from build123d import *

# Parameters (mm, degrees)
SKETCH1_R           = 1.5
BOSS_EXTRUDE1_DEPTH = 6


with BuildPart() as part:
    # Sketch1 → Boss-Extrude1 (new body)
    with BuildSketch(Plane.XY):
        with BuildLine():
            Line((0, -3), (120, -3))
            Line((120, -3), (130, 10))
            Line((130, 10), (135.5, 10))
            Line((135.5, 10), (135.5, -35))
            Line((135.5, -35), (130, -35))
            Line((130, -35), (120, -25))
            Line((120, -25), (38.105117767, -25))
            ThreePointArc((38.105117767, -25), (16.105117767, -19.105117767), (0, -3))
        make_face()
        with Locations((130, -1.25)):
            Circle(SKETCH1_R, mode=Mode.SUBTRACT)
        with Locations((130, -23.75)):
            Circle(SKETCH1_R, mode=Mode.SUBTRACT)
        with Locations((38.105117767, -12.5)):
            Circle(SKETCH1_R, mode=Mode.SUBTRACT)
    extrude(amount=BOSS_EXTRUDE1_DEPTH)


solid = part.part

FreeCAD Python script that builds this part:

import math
import FreeCAD as App
import Part
import Sketcher

V = App.Vector
Q = App.Units.Quantity

doc = App.newDocument("Part")
body = doc.addObject("PartDesign::Body", "Body")

sketch1 = body.newObject("Sketcher::SketchObject", "Sketch")
sketch1.AttachmentSupport = (doc.getObject("XY_Plane"), [""])
sketch1.MapMode = "FlatFace"
sketch1.addGeometry(Part.LineSegment(V(120, -3, 0), V(0, -3, 0)), False)
sketch1.addGeometry(Part.ArcOfCircle(Part.Circle(V(38.1, 19, 0), V(0, 0, 1), 44), math.radians(-150), math.radians(-90)), False)
sketch1.addGeometry(Part.LineSegment(V(38.1, -25, 0), V(120, -25, 0)), False)
sketch1.addGeometry(Part.LineSegment(V(120, -25, 0), V(130, -35, 0)), False)
sketch1.addGeometry(Part.LineSegment(V(130, -35, 0), V(135.5, -35, 0)), False)
sketch1.addGeometry(Part.LineSegment(V(135.5, -35, 0), V(135.5, 10, 0)), False)
sketch1.addGeometry(Part.LineSegment(V(135.5, 10, 0), V(130, 10, 0)), False)
sketch1.addGeometry(Part.LineSegment(V(130, 10, 0), V(120, -3, 0)), False)
sketch1.addGeometry(Part.Circle(V(130, -23.8, 0), V(0, 0, 1), 1.5), False)
sketch1.addGeometry(Part.Circle(V(130, -1.2, 0), V(0, 0, 1), 1.5), False)
sketch1.addGeometry(Part.Circle(V(38.1, -12.5, 0), V(0, 0, 1), 1.5), False)
sketch1.addConstraint(Sketcher.Constraint("Coincident", 0, 2, 1, 1))
sketch1.addConstraint(Sketcher.Constraint("Tangent", 1, 2, 2, 1))
sketch1.addConstraint(Sketcher.Constraint("Coincident", 2, 2, 3, 1))
sketch1.addConstraint(Sketcher.Constraint("Coincident", 3, 2, 4, 1))
sketch1.addConstraint(Sketcher.Constraint("Coincident", 4, 2, 5, 1))
sketch1.addConstraint(Sketcher.Constraint("Coincident", 5, 2, 6, 1))
sketch1.addConstraint(Sketcher.Constraint("Coincident", 6, 2, 7, 1))
sketch1.addConstraint(Sketcher.Constraint("Coincident", 7, 2, 0, 1))
sketch1.addConstraint(Sketcher.Constraint("Horizontal", 0))
sketch1.addConstraint(Sketcher.Constraint("Horizontal", 2))
sketch1.addConstraint(Sketcher.Constraint("Horizontal", 4))
sketch1.addConstraint(Sketcher.Constraint("Vertical", 5))
sketch1.addConstraint(Sketcher.Constraint("Horizontal", 6))
sketch1.addConstraint(Sketcher.Constraint("Equal", 8, 9))
sketch1.addConstraint(Sketcher.Constraint("Equal", 9, 10))
sketch1.addConstraint(Sketcher.Constraint("PointOnObject", 0, 2, -2))
sketch1.addConstraint(Sketcher.Constraint("Vertical", 8, 3, 9, 3))
sketch1.addConstraint(Sketcher.Constraint("Vertical", 1, 3, 10, 3))
sketch1.addConstraint(Sketcher.Constraint("Vertical", 9, 3, 3, 2))
sketch1.addConstraint(Sketcher.Constraint("Vertical", 3, 2, 6, 2))
sketch1.addConstraint(Sketcher.Constraint("Vertical", 2, 2, 7, 2))
sketch1.addConstraint(Sketcher.Constraint("Diameter", 8, 3.0))
sketch1.addConstraint(Sketcher.Constraint("Radius", 1, 44.0))
sketch1.addConstraint(Sketcher.Constraint("DistanceX", 0, 2, 0, 1, 120.0))
sketch1.addConstraint(Sketcher.Constraint("DistanceY", 5, 1, 5, 2, 45.0))
sketch1.addConstraint(Sketcher.Constraint("Angle", 3, Q("-45 deg")))
sketch1.addConstraint(Sketcher.Constraint("DistanceX", 4, 1, 4, 2, 5.5))
sketch1.addConstraint(Sketcher.Constraint("DistanceY", -1, 1, 1, 3, 19.0))
sketch1.addConstraint(Sketcher.Constraint("DistanceX", -1, 1, 8, 3, 130.0))
sketch1.addConstraint(Sketcher.Constraint("DistanceY", 0, 2, -1, 1, 3.0))
sketch1.addConstraint(Sketcher.Constraint("DistanceY", 10, 3, -1, 1, 12.5))
sketch1.addConstraint(Sketcher.Constraint("DistanceY", 8, 3, 9, 3, 22.5))
sketch1.addConstraint(Sketcher.Constraint("DistanceY", 8, 3, -1, 1, 23.75))
pad1 = body.newObject("PartDesign::Pad", "Pad")
pad1.Profile = sketch1
pad1.Length = 6

doc.recompute()
